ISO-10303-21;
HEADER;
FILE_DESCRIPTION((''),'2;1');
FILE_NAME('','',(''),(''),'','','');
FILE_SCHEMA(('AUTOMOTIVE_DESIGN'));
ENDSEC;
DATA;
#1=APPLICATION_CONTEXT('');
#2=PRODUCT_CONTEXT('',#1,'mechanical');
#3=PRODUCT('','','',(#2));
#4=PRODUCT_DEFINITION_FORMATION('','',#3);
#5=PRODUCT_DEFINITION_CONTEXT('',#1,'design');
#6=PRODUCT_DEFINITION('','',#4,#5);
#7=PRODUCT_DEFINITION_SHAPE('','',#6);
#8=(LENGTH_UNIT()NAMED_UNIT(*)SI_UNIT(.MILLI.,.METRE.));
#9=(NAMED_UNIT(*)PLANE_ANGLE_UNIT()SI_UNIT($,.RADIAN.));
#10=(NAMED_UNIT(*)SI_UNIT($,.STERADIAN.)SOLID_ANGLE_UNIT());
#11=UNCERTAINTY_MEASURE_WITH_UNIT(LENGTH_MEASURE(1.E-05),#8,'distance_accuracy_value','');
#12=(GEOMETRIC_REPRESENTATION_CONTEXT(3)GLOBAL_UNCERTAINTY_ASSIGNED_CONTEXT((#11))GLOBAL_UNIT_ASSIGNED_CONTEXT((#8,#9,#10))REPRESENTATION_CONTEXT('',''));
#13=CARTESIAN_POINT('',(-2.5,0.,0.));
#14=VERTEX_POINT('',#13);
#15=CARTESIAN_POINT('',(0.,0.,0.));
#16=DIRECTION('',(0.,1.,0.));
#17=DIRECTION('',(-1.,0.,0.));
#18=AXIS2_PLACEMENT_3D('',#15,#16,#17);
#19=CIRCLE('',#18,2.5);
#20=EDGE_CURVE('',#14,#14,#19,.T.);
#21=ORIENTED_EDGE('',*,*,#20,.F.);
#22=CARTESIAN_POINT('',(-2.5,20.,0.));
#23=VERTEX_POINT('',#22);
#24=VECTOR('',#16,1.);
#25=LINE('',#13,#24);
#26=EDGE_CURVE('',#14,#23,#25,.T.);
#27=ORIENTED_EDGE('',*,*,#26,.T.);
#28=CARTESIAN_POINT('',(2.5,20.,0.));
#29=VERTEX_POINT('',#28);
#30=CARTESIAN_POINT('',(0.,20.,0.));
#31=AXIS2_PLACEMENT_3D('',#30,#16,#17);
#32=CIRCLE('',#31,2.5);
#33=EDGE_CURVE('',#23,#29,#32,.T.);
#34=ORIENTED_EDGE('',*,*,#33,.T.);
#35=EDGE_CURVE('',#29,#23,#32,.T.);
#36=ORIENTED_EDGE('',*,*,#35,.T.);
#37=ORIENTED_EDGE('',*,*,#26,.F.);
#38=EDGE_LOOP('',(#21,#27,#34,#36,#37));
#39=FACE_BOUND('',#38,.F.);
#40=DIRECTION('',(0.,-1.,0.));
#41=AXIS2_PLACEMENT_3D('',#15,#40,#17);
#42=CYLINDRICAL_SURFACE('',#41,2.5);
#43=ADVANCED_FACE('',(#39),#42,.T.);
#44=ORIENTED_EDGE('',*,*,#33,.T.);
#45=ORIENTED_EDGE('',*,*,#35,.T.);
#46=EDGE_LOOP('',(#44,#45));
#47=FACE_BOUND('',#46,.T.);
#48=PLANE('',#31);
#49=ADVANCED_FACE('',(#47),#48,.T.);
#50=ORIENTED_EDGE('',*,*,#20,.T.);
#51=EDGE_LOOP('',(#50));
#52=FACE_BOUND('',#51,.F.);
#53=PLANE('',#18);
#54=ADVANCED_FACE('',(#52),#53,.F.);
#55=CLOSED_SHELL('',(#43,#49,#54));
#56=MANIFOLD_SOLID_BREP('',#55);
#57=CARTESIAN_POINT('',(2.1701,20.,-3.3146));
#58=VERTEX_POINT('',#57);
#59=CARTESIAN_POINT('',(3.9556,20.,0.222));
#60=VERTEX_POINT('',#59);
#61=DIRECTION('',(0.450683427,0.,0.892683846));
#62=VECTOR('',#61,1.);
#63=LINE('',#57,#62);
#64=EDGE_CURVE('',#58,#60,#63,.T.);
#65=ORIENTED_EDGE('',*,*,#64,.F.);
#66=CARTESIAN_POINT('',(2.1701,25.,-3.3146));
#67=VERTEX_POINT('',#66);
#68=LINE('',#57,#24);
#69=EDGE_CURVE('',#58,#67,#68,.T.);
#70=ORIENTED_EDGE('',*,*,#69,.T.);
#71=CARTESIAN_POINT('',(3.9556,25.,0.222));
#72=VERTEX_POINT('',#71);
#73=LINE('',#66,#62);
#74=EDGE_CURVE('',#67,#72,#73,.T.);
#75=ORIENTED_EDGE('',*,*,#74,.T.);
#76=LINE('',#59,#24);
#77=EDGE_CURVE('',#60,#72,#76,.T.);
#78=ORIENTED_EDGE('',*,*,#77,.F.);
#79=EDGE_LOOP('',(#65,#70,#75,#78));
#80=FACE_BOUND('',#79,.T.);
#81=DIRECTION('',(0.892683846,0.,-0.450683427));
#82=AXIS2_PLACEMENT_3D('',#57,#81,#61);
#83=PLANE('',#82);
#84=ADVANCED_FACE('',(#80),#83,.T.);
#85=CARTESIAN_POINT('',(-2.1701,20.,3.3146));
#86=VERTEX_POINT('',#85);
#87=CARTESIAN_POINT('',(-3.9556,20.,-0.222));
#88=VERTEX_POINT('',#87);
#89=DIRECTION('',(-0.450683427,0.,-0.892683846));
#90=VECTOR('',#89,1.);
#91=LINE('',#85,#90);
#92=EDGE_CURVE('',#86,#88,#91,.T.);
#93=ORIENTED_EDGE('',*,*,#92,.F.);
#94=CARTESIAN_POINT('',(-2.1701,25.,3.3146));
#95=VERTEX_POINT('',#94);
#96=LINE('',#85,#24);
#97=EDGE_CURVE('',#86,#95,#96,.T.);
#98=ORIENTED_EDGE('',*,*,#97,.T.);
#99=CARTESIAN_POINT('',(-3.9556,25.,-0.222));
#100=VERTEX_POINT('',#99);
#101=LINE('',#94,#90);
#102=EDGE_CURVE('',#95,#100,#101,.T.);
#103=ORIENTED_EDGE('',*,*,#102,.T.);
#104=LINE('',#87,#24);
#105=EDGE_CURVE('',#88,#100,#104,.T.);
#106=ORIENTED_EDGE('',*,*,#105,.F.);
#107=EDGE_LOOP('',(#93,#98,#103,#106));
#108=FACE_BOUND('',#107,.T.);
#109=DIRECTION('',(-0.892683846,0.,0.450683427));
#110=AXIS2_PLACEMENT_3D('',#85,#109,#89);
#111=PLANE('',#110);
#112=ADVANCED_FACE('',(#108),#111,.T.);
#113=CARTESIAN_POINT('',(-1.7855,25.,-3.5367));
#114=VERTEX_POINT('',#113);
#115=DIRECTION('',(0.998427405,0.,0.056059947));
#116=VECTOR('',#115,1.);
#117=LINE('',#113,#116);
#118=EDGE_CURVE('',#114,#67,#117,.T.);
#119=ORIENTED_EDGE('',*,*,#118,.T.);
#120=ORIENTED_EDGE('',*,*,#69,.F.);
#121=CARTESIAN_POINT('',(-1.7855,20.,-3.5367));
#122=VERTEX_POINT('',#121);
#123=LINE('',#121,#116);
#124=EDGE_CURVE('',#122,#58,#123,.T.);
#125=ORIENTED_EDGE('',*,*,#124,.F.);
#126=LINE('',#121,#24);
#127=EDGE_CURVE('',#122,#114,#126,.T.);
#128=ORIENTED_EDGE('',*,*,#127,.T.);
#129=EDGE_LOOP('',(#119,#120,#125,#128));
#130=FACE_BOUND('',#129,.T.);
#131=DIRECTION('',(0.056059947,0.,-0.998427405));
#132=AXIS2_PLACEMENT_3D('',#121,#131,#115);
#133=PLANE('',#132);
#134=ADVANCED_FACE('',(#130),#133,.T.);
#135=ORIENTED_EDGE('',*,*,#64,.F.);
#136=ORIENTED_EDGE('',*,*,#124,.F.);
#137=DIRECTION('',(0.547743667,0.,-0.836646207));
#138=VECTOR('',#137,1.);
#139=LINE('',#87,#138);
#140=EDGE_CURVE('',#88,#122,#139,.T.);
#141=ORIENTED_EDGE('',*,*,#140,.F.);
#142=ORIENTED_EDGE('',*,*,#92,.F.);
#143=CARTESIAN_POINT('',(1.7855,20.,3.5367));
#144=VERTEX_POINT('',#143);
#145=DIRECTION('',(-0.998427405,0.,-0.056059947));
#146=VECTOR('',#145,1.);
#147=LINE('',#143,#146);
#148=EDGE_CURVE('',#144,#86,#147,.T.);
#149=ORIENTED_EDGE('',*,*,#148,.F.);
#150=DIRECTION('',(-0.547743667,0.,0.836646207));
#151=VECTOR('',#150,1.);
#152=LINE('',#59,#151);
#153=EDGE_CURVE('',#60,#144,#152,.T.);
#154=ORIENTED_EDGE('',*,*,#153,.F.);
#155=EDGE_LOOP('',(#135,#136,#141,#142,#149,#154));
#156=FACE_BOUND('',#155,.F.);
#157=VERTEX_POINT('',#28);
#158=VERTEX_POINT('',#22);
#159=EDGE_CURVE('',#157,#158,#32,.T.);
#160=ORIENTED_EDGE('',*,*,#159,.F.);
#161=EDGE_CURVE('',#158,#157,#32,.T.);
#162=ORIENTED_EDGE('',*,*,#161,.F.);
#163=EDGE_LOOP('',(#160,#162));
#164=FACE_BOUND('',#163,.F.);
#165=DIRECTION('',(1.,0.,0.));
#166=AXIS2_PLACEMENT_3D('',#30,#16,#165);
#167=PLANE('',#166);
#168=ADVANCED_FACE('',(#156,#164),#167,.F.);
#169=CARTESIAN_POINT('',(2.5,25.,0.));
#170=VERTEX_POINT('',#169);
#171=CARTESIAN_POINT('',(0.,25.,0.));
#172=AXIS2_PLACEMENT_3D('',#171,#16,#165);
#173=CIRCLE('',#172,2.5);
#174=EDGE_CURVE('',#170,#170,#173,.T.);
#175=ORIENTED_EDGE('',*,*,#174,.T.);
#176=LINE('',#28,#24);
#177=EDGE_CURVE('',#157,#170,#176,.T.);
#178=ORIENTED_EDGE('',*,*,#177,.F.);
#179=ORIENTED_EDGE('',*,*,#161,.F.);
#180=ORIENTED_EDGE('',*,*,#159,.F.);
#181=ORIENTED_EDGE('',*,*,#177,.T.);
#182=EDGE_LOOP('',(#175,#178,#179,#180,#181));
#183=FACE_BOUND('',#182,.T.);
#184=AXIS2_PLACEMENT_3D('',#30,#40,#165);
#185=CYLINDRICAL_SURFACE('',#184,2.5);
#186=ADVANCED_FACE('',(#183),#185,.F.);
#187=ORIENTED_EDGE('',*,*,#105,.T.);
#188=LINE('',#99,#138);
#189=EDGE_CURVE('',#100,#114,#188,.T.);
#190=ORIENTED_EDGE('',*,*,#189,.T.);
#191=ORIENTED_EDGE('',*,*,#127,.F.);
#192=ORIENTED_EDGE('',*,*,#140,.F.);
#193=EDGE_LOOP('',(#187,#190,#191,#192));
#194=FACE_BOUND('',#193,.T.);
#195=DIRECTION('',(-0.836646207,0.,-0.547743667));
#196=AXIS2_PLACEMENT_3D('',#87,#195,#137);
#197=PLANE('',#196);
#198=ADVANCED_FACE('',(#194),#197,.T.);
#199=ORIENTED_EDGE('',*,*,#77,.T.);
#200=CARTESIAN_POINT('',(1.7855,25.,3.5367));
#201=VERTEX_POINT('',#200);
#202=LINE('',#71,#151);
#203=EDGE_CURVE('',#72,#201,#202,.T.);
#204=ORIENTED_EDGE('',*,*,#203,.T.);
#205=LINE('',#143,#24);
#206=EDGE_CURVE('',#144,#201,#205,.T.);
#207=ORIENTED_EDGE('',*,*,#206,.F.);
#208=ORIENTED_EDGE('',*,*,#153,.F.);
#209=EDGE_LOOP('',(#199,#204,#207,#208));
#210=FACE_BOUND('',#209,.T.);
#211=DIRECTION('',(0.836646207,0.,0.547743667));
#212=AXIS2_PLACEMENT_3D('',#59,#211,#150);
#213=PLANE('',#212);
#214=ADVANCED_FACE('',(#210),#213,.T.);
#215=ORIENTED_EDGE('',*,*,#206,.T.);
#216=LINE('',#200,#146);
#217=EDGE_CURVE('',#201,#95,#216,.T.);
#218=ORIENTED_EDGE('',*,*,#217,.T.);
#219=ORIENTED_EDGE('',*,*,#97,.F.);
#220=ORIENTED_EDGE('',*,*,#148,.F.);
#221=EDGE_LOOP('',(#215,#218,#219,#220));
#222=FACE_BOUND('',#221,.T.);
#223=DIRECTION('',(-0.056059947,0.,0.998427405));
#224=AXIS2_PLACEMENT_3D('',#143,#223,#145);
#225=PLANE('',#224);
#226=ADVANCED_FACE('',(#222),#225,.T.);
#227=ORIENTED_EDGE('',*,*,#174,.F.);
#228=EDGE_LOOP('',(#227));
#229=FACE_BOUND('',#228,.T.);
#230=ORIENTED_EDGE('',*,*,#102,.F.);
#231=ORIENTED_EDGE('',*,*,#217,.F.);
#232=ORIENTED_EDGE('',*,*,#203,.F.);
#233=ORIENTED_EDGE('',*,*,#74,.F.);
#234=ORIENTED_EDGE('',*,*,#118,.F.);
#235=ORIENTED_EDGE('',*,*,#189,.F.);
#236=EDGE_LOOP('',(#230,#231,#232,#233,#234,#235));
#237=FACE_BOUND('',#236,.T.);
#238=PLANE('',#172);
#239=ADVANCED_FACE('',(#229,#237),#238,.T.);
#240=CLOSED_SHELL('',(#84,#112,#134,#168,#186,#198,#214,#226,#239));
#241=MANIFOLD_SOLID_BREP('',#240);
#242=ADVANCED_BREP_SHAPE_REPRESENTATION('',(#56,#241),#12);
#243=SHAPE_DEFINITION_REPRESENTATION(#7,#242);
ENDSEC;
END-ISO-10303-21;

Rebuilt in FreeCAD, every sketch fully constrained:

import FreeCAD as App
import Part
import Sketcher


def add_polygon(sketch, points):
    """Adds a closed chain of lines whose ends are joined by coincident constraints."""
    first, n = sketch.GeometryCount, len(points)
    for a, b in zip(points, points[1:] + points[:1]):
        sketch.addGeometry(Part.LineSegment(App.Vector(*a, 0), App.Vector(*b, 0)), False)
    for i in range(n):
        sketch.addConstraint(Sketcher.Constraint("Coincident", first + i, 2, first + (i + 1) % n, 1))

doc = App.newDocument("Part")
params = doc.addObject("Spreadsheet::Sheet", "Params")
for row, (alias, value) in enumerate([
    ("sketch1_diameter", "5 mm"),
    ("pad1_length", "20 mm"),
    ("sketch2_diameter", "5 mm"),
    ("pad2_length", "5 mm"),
], start=1):
    params.set(f"A{row}", alias)
    params.set(f"B{row}", "=" + value)
    params.setAlias(f"B{row}", alias)

body = doc.addObject("PartDesign::Body", "Body")
body.AllowCompound = True

# Sketch on XZ plane
sketch1 = doc.addObject("Sketcher::SketchObject", "Sketch")
body.addObject(sketch1)
sketch1.AttachmentSupport = (doc.XZ_Plane, [""])
sketch1.MapMode = "FlatFace"
sketch1.addGeometry(Part.Circle(App.Vector(0, 0, 0), App.Vector(0, 0, 1), 2.5), False)
sketch1.addConstraint(Sketcher.Constraint("Coincident", 0, 3, -1, 1))
sketch1.addConstraint(Sketcher.Constraint("Diameter", 0, 5.0))
sketch1.setExpression("Constraints[1]", "Params.sketch1_diameter")
pad1 = doc.addObject("PartDesign::Pad", "Pad")
body.addObject(pad1)
pad1.Profile = sketch1
pad1.setExpression("Length", "Params.pad1_length")
pad1.Reversed = True

# Sketch on XZ plane
sketch2 = doc.addObject("Sketcher::SketchObject", "Sketch001")
body.addObject(sketch2)
sketch2.AttachmentSupport = (doc.XZ_Plane, [""])
sketch2.MapMode = "FlatFace"
sketch2.AttachmentOffset = App.Placement(App.Vector(0, 0, -20), App.Rotation())
add_polygon(sketch2, [(-2.2, 3.3), (1.8, 3.5), (4, 0.2), (2.2, -3.3), (-1.8, -3.5), (-4, -0.2)])  # lines 0-5
sketch2.addGeometry(Part.Circle(App.Vector(0, 0, 0), App.Vector(0, 0, 1), 2.5), False)  # 6
sketch2.addConstraint(Sketcher.Constraint("Coincident", 6, 3, -1, 1))
sketch2.addConstraint(Sketcher.Constraint("Symmetric", 0, 2, 3, 2, -1, 1))
sketch2.addConstraint(Sketcher.Constraint("Symmetric", 1, 2, 4, 2, -1, 1))
sketch2.addConstraint(Sketcher.Constraint("Symmetric", 2, 2, 5, 2, -1, 1))
sketch2.addConstraint(Sketcher.Constraint("Equal", 0, 1))
sketch2.addConstraint(Sketcher.Constraint("Equal", 1, 2))
sketch2.addConstraint(Sketcher.Constraint("Diameter", 6, 5.0))
sketch2.addConstraint(Sketcher.Constraint("DistanceX", -1, 1, 2, 2, 2.17))
sketch2.addConstraint(Sketcher.Constraint("DistanceX", 0, 2, 1, 2, 2.17))
sketch2.addConstraint(Sketcher.Constraint("Distance", 1, 3.962))
sketch2.addConstraint(Sketcher.Constraint("DistanceY", -1, 1, 1, 2, 0.222))
sketch2.setExpression("Constraints[12]", "Params.sketch2_diameter")
pad2 = doc.addObject("PartDesign::Pad", "Pad001")
body.addObject(pad2)
pad2.Profile = sketch2
pad2.setExpression("Length", "Params.pad2_length")
pad2.Reversed = True

doc.recompute()
